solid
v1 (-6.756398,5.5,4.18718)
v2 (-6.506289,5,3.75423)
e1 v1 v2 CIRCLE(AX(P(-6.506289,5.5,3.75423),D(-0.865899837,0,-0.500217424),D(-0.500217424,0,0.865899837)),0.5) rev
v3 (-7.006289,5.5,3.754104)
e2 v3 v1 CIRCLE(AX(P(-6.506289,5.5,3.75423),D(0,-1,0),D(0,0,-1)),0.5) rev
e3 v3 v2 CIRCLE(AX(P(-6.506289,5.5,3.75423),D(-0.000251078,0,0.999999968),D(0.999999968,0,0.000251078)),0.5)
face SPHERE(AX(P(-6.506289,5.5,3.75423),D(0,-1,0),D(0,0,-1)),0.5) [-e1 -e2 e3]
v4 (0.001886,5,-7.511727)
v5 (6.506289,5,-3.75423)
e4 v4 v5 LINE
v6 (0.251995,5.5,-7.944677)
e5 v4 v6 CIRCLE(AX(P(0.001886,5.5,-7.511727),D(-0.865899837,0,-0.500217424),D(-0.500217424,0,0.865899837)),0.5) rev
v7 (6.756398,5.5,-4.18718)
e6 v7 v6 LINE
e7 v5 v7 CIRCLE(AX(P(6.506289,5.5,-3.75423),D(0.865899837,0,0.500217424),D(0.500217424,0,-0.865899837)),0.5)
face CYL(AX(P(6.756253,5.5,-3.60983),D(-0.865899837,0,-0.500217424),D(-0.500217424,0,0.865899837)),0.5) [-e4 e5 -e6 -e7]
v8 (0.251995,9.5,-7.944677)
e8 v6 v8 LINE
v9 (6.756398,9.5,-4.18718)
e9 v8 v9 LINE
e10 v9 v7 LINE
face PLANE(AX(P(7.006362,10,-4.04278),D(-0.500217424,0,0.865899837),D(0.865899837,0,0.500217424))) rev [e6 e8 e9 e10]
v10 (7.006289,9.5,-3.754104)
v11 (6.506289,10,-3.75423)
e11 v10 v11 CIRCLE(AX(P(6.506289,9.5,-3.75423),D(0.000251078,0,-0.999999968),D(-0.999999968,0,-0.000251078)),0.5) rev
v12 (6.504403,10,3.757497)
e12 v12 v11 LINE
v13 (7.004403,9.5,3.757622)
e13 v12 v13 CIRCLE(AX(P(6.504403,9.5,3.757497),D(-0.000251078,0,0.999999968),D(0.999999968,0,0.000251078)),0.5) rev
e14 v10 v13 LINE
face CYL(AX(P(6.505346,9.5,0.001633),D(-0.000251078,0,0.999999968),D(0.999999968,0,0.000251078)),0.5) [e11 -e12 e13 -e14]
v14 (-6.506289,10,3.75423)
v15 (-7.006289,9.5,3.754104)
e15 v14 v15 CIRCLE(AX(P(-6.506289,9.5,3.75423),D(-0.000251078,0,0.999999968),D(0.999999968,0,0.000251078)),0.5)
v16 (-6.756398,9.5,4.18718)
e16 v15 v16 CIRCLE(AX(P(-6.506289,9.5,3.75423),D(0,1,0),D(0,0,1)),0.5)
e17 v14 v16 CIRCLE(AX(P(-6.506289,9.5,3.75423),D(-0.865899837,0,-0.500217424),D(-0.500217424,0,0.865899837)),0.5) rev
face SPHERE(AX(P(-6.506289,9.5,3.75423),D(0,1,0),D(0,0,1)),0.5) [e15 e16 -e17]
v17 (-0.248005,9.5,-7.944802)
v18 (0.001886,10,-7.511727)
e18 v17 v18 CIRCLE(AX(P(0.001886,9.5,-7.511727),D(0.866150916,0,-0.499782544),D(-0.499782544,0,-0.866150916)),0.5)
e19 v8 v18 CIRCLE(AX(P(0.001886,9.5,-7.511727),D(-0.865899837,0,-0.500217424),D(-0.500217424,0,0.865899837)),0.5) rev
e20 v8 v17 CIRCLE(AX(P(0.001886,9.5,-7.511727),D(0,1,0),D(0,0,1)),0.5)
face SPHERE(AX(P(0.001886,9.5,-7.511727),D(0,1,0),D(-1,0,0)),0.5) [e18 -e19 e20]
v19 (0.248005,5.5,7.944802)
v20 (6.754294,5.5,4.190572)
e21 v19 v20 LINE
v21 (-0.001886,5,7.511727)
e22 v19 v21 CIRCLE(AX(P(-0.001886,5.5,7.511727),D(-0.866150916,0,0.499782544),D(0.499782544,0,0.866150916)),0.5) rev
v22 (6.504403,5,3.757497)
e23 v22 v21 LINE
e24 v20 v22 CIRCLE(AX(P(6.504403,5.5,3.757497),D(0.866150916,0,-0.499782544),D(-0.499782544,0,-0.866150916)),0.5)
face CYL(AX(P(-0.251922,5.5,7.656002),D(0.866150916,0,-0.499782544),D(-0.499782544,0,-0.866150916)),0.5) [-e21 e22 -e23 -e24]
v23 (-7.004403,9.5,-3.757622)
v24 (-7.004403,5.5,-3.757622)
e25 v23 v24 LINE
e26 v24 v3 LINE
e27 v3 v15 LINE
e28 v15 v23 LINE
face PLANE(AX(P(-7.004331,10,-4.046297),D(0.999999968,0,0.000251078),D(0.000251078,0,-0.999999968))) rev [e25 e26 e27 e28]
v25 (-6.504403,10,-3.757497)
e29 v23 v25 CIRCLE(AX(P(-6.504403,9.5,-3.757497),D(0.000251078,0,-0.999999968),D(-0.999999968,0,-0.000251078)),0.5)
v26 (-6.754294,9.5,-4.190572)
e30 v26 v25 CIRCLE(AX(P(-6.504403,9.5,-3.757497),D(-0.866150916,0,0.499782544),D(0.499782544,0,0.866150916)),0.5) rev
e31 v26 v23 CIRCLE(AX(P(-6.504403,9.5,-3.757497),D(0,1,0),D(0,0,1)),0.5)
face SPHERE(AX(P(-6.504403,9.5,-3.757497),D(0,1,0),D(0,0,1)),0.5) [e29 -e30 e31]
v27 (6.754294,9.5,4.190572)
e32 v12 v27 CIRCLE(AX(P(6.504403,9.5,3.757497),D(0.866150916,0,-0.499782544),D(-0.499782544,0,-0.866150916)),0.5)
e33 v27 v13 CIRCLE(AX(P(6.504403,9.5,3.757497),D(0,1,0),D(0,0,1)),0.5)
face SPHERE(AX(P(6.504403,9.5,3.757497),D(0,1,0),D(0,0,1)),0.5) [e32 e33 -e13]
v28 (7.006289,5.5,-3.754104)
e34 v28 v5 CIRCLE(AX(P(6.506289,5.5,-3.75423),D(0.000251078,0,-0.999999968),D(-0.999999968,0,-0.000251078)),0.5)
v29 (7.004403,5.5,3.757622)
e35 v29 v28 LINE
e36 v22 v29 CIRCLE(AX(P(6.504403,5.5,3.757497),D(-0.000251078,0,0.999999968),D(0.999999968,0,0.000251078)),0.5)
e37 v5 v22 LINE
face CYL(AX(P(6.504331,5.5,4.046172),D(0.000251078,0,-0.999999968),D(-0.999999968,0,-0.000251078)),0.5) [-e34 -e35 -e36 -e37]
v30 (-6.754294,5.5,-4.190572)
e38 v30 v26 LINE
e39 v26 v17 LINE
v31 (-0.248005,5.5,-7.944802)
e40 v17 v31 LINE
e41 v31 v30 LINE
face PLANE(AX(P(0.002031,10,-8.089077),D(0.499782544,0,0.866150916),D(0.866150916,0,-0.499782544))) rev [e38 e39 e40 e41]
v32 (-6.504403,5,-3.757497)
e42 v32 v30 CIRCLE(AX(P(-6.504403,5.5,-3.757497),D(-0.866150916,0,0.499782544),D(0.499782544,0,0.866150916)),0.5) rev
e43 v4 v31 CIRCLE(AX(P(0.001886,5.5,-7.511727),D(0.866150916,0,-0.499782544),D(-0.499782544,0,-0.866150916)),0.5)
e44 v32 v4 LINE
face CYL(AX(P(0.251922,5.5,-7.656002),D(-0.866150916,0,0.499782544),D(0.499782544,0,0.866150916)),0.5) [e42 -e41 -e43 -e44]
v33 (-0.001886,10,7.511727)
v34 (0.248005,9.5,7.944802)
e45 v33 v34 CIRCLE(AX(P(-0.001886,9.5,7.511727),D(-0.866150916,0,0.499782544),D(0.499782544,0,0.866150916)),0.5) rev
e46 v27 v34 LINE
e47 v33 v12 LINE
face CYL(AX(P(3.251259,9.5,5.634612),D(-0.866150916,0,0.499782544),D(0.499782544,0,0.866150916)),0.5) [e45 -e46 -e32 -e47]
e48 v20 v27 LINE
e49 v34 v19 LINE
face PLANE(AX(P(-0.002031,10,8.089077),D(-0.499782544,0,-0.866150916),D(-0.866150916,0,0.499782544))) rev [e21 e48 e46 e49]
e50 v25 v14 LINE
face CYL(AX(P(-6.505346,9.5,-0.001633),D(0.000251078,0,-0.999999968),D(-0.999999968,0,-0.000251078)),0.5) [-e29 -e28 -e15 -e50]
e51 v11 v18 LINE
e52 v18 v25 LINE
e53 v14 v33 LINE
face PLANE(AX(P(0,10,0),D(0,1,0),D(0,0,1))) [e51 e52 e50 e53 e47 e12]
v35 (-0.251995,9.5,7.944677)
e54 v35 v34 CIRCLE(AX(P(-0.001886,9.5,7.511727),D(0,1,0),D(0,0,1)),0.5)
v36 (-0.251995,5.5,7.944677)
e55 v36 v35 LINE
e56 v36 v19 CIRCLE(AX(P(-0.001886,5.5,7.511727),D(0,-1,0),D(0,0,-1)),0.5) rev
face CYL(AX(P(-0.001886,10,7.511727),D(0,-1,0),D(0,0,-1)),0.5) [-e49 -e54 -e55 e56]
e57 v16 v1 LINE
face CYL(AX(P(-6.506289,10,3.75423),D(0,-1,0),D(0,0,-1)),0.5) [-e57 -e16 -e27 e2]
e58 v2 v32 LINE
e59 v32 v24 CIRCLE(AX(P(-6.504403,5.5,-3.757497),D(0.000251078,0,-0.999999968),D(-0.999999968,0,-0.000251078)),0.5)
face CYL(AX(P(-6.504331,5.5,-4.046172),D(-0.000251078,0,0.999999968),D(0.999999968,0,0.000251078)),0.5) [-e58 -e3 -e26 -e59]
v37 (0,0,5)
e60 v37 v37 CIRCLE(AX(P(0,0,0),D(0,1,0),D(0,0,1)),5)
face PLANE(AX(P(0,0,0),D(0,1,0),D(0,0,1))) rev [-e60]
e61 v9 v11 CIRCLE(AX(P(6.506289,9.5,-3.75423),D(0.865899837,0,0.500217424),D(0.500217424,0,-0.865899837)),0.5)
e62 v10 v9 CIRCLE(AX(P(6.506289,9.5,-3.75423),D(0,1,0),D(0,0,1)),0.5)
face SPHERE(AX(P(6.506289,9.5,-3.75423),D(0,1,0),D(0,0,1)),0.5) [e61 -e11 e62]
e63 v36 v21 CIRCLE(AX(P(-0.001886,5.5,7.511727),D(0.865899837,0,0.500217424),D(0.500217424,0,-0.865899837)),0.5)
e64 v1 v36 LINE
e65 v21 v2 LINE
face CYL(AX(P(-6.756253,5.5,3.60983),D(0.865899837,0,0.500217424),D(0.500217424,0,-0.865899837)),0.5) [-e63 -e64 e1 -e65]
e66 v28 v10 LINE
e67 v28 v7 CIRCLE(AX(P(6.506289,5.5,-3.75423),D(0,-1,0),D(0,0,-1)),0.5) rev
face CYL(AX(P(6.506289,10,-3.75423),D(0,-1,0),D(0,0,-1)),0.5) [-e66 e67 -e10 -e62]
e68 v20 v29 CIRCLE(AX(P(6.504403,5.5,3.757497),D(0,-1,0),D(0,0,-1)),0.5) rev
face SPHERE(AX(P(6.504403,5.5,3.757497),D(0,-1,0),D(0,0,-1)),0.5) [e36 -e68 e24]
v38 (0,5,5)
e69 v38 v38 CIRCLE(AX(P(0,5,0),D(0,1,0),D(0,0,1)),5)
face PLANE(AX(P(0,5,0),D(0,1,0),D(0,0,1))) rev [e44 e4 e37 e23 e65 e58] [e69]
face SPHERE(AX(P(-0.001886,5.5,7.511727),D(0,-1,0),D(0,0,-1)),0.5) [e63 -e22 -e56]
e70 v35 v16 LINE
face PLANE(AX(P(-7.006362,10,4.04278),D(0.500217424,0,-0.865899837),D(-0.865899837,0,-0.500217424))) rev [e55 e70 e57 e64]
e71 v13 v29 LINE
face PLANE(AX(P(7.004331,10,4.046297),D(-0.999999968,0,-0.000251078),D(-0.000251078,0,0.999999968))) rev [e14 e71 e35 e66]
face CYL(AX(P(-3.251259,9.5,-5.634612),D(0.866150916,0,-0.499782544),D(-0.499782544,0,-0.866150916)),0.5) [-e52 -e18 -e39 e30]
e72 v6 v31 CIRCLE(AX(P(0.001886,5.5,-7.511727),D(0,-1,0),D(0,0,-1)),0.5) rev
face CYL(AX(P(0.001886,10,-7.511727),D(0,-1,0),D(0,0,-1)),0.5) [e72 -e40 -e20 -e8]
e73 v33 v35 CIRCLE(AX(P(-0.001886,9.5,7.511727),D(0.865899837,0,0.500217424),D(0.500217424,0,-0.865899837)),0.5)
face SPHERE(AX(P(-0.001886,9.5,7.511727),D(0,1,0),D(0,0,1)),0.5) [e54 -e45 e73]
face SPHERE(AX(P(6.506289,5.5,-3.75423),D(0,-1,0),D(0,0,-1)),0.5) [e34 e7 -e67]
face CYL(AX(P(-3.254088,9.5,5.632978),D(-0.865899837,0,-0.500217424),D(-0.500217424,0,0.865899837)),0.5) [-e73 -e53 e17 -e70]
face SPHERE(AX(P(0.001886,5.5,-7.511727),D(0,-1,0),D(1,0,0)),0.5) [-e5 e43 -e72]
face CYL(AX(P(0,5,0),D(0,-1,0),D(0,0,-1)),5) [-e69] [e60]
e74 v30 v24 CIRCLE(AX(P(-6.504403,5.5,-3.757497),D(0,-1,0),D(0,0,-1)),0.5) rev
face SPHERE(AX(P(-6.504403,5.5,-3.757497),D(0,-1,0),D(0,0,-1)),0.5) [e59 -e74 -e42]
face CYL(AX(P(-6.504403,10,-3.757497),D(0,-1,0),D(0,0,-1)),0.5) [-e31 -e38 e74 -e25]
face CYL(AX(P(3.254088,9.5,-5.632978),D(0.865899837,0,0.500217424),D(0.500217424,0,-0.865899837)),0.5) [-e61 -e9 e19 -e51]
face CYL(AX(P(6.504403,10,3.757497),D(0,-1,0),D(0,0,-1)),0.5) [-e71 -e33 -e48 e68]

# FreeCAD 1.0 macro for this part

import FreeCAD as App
import Part
import Sketcher
from FreeCAD import Vector
Q = App.Units.Quantity


def edges_at(feature, points):
    """Names of the edges that pass closest to the given points."""
    edges = feature.Shape.Edges
    near = lambda p: min(range(len(edges)), key=lambda i: edges[i].distToShape(Part.Vertex(*p))[0])
    return sorted({f"Edge{near(p) + 1}" for p in points})


def add_polygon(sketch, points):
    """Adds a closed chain of lines whose ends are joined by coincident constraints."""
    first, n = sketch.GeometryCount, len(points)
    for a, b in zip(points, points[1:] + points[:1]):
        sketch.addGeometry(Part.LineSegment(App.Vector(*a, 0), App.Vector(*b, 0)), False)
    for i in range(n):
        sketch.addConstraint(Sketcher.Constraint("Coincident", first + i, 2, first + (i + 1) % n, 1))

doc = App.newDocument("Part")
body = doc.addObject("PartDesign::Body", "Body")

sketch1 = body.newObject("Sketcher::SketchObject", "Sketch")
sketch1.AttachmentSupport = (doc.getObject("XZ_Plane"), [""])
sketch1.MapMode = "FlatFace"
sketch1.addGeometry(Part.Circle(Vector(0, 0, 0), Vector(0, 0, 1), 5), False)
sketch1.addConstraint(Sketcher.Constraint("Coincident", 0, 3, -1, 1))
sketch1.addConstraint(Sketcher.Constraint("Diameter", 0, Q("10 mm")))
pad1 = body.newObject("PartDesign::Pad", "Pad")
pad1.Profile = sketch1
pad1.Length = 5
pad1.Reversed = True

sketch2 = body.newObject("Sketcher::SketchObject", "Sketch001")
sketch2.AttachmentSupport = (doc.getObject("XZ_Plane"), [""])
sketch2.MapMode = "FlatFace"
sketch2.AttachmentOffset = App.Placement(Vector(0, 0, -5), App.Rotation())
add_polygon(sketch2, [(7, 4), (7, -4), (0, -8), (-7, -4), (-7, 4), (0, 8)])
sketch2.addConstraint(Sketcher.Constraint("Symmetric", 0, 2, 3, 2, -1, 1))
sketch2.addConstraint(Sketcher.Constraint("Symmetric", 1, 2, 4, 2, -1, 1))
sketch2.addConstraint(Sketcher.Constraint("Symmetric", 2, 2, 5, 2, -1, 1))
sketch2.addConstraint(Sketcher.Constraint("Equal", 0, 1))
sketch2.addConstraint(Sketcher.Constraint("Equal", 1, 2))
sketch2.addConstraint(Sketcher.Constraint("DistanceX", 2, 2, 4, 2, Q("7.0023 mm")))
sketch2.addConstraint(Sketcher.Constraint("DistanceX", -1, 1, 0, 2, Q("7.006362 mm")))
sketch2.addConstraint(Sketcher.Constraint("DistanceY", 0, 2, -1, 1, Q("4.04278 mm")))
sketch2.addConstraint(Sketcher.Constraint("DistanceX", -1, 1, 1, 2, Q("0.002031 mm")))
pad2 = body.newObject("PartDesign::Pad", "Pad001")
pad2.Profile = sketch2
pad2.Length = 5
pad2.Reversed = True
doc.recompute()

fillet = body.newObject("PartDesign::Fillet", "Fillet")
fillet.Base = (pad2, edges_at(pad2, [
    (3.501, 5, 6.068),
    (-0.002, 7.5, 8.089),
    (7.005, 5, 0.002),
    (7.004, 7.5, 4.046),
    (3.504, 5, -6.066),
    (7.006, 7.5, -4.043),
    (-3.501, 5, -6.068),
    (0.002, 7.5, -8.089),
    (-7.005, 5, -0.002),
    (-7.004, 7.5, -4.046),
    (-3.504, 5, 6.066),
    (-7.006, 7.5, 4.043),
    (3.501, 10, 6.068),
    (7.005, 10, 0.002),
    (3.504, 10, -6.066),
    (-3.501, 10, -6.068),
    (-7.005, 10, -0.002),
    (-3.504, 10, 6.066),
]))
fillet.Radius = 0.5

doc.recompute()
